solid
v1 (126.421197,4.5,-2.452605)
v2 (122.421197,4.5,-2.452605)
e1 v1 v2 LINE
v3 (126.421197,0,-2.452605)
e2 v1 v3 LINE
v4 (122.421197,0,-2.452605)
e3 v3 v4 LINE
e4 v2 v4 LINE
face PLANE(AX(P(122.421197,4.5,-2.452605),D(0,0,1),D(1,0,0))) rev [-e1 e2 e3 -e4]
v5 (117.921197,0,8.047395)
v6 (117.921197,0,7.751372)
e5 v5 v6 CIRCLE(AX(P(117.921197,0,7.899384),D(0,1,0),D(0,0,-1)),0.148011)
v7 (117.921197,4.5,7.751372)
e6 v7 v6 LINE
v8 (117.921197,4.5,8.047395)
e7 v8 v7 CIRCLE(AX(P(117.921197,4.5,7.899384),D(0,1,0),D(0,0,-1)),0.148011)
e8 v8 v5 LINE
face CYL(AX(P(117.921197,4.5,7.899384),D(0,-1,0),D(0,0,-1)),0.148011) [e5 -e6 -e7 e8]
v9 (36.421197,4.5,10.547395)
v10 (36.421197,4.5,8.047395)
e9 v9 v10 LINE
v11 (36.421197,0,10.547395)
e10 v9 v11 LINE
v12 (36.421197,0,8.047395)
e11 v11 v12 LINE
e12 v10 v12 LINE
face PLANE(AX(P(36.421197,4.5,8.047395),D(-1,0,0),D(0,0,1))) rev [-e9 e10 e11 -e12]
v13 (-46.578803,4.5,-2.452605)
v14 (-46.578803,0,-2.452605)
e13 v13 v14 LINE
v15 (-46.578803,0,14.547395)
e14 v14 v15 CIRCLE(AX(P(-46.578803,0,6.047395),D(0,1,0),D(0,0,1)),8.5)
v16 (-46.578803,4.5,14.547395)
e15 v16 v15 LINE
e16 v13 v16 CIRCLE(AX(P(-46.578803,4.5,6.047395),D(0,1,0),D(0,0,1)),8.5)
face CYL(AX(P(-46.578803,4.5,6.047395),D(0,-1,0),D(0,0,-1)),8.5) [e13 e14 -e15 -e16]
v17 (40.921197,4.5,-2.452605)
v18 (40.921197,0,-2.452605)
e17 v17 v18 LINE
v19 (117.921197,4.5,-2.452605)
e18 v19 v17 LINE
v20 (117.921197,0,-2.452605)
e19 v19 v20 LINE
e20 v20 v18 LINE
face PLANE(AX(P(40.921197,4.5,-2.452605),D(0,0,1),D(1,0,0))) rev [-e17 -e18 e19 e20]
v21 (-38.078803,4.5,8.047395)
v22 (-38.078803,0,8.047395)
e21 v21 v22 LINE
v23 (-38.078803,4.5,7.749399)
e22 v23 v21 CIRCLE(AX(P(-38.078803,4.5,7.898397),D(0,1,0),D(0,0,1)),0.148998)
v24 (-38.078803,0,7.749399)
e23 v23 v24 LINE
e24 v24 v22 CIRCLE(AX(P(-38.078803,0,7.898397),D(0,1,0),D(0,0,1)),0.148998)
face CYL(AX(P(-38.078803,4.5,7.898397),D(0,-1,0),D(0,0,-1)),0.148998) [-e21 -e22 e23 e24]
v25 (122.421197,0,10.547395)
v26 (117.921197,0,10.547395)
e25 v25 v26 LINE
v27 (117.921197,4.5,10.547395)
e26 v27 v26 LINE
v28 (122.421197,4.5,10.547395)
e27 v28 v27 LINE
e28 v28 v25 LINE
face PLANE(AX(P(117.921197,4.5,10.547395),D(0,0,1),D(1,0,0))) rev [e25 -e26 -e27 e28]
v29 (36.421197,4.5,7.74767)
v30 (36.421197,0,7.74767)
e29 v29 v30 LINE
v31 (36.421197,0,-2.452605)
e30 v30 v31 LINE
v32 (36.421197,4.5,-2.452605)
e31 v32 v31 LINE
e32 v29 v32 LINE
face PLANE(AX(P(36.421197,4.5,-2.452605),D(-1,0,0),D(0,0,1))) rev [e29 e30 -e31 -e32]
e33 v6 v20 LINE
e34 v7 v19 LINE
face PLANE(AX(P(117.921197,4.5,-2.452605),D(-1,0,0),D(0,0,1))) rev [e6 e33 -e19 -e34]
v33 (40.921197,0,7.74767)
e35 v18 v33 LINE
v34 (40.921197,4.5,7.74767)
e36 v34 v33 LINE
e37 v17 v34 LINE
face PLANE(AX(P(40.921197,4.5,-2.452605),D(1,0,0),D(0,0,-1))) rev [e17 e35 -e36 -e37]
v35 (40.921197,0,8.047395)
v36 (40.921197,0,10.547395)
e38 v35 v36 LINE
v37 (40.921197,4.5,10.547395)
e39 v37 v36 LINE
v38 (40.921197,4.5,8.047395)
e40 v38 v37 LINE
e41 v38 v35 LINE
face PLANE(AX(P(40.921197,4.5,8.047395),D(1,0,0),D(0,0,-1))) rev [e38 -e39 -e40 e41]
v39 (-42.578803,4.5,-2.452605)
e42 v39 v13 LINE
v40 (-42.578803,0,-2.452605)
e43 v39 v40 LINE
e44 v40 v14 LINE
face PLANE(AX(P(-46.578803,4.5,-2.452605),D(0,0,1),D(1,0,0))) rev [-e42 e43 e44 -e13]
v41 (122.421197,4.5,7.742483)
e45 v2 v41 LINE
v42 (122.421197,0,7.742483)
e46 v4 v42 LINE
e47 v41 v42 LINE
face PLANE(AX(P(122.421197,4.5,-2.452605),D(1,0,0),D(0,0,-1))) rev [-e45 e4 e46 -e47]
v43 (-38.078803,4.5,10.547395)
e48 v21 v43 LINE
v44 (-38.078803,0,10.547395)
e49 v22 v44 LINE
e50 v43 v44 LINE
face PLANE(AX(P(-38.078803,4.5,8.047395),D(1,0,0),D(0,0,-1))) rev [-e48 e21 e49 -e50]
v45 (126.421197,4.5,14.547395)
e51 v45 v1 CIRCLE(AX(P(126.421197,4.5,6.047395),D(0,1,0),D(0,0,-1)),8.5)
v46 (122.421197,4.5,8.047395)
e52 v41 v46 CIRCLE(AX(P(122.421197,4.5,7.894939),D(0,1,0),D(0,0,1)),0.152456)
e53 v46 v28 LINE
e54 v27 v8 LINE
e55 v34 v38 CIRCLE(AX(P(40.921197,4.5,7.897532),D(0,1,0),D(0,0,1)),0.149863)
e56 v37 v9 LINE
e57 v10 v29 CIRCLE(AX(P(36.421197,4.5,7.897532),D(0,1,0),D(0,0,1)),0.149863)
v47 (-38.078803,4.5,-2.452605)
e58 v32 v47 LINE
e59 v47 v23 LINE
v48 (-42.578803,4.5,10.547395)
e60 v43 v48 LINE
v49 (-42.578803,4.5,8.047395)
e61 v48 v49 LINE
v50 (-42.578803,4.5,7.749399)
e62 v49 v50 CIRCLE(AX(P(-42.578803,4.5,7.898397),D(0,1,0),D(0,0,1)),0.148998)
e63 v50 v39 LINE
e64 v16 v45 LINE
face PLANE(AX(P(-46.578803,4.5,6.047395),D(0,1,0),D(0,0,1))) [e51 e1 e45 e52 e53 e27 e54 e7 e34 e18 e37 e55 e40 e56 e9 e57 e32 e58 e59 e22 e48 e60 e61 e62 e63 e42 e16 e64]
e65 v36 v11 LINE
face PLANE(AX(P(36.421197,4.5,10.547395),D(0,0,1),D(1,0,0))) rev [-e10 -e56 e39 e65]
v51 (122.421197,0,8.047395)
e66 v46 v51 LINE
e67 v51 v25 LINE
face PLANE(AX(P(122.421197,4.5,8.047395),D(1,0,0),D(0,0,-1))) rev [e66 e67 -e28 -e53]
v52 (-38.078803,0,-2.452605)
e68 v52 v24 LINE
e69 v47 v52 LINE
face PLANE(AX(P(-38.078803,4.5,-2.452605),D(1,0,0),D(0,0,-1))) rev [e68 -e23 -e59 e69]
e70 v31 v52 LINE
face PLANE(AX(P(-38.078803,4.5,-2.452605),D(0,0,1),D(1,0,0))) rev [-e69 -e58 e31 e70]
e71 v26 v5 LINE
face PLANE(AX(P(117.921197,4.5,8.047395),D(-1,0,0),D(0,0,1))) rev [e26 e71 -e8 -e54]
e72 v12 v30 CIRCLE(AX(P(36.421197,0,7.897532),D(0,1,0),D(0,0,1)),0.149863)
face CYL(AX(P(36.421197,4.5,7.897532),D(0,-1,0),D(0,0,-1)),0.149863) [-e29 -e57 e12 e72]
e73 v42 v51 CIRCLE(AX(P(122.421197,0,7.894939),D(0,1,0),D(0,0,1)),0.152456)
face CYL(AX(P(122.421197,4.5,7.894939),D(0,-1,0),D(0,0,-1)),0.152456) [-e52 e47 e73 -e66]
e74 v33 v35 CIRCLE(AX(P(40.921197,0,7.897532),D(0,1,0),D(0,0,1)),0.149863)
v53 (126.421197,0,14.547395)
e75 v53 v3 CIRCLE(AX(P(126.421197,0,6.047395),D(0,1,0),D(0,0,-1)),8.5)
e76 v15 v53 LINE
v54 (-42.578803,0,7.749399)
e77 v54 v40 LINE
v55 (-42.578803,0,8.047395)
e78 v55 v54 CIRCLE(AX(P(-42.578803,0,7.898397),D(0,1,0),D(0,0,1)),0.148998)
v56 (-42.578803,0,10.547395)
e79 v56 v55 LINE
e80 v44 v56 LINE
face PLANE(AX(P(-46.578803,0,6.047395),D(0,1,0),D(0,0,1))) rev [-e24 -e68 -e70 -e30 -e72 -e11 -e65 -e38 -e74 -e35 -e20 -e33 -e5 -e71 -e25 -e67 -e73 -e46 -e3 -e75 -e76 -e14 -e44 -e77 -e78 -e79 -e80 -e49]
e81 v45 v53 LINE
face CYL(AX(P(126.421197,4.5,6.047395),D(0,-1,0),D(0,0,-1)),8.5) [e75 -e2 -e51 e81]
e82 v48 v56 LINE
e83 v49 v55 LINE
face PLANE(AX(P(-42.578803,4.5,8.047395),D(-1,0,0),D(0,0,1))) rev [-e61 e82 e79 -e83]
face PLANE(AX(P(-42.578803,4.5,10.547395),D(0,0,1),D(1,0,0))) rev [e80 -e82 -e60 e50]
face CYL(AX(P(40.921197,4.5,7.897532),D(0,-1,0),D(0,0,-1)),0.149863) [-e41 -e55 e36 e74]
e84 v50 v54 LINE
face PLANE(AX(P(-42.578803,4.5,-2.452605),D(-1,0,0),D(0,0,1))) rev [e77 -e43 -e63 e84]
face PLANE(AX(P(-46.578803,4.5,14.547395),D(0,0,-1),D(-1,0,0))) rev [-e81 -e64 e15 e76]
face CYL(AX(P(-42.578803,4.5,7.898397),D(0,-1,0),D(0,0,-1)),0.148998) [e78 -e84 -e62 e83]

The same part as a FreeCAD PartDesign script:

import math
import FreeCAD as App
import Part
import Sketcher
Q = App.Units.Quantity

doc = App.newDocument("Part")
body = doc.addObject("PartDesign::Body", "Body")

# Sketch on XZ plane
sketch1 = body.newObject("Sketcher::SketchObject", "Sketch")
sketch1.AttachmentSupport = (doc.getObject("XZ_Plane"), [""])
sketch1.MapMode = "FlatFace"
sketch1.addGeometry(Part.LineSegment(App.Vector(117.92, -2.45, 0), App.Vector(40.92, -2.45, 0)), False)
sketch1.addGeometry(Part.LineSegment(App.Vector(40.92, -2.45, 0), App.Vector(40.92, 7.75, 0)), False)
sketch1.addGeometry(Part.ArcOfCircle(Part.Circle(App.Vector(40.92, 7.9, 0), App.Vector(0, 0, 1), 0.15), math.radians(90), math.radians(270)), False)
sketch1.addGeometry(Part.LineSegment(App.Vector(40.92, 8.05, 0), App.Vector(40.92, 10.55, 0)), False)
sketch1.addGeometry(Part.LineSegment(App.Vector(40.92, 10.55, 0), App.Vector(36.42, 10.55, 0)), False)
sketch1.addGeometry(Part.LineSegment(App.Vector(36.42, 10.55, 0), App.Vector(36.42, 8.05, 0)), False)
sketch1.addGeometry(Part.ArcOfCircle(Part.Circle(App.Vector(36.42, 7.9, 0), App.Vector(0, 0, 1), 0.15), math.radians(-90), math.radians(90)), False)
sketch1.addGeometry(Part.LineSegment(App.Vector(36.42, 7.75, 0), App.Vector(36.42, -2.45, 0)), False)
sketch1.addGeometry(Part.LineSegment(App.Vector(36.42, -2.45, 0), App.Vector(-38.08, -2.45, 0)), False)
sketch1.addGeometry(Part.LineSegment(App.Vector(-38.08, -2.45, 0), App.Vector(-38.08, 7.75, 0)), False)
sketch1.addGeometry(Part.ArcOfCircle(Part.Circle(App.Vector(-38.08, 7.9, 0), App.Vector(0, 0, 1), 0.15), math.radians(90), math.radians(270)), False)
sketch1.addGeometry(Part.LineSegment(App.Vector(-38.08, 8.05, 0), App.Vector(-38.08, 10.55, 0)), False)
sketch1.addGeometry(Part.LineSegment(App.Vector(-38.08, 10.55, 0), App.Vector(-42.58, 10.55, 0)), False)
sketch1.addGeometry(Part.LineSegment(App.Vector(-42.58, 10.55, 0), App.Vector(-42.58, 8.05, 0)), False)
sketch1.addGeometry(Part.ArcOfCircle(Part.Circle(App.Vector(-42.58, 7.9, 0), App.Vector(0, 0, 1), 0.15), math.radians(-90), math.radians(90)), False)
sketch1.addGeometry(Part.LineSegment(App.Vector(-42.58, 7.75, 0), App.Vector(-42.58, -2.45, 0)), False)
sketch1.addGeometry(Part.LineSegment(App.Vector(-42.58, -2.45, 0), App.Vector(-46.58, -2.45, 0)), False)
sketch1.addGeometry(Part.ArcOfCircle(Part.Circle(App.Vector(-46.58, 6.05, 0), App.Vector(0, 0, 1), 8.5), math.radians(90), math.radians(270)), False)
sketch1.addGeometry(Part.LineSegment(App.Vector(-46.58, 14.55, 0), App.Vector(126.42, 14.55, 0)), False)
sketch1.addGeometry(Part.ArcOfCircle(Part.Circle(App.Vector(126.42, 6.05, 0), App.Vector(0, 0, 1), 8.5), math.radians(-90), math.radians(90)), False)
sketch1.addGeometry(Part.LineSegment(App.Vector(126.42, -2.45, 0), App.Vector(122.42, -2.45, 0)), False)
sketch1.addGeometry(Part.LineSegment(App.Vector(122.42, -2.45, 0), App.Vector(122.42, 7.74, 0)), False)
sketch1.addGeometry(Part.ArcOfCircle(Part.Circle(App.Vector(122.42, 7.89, 0), App.Vector(0, 0, 1), 0.15), math.radians(90), math.radians(270)), False)
sketch1.addGeometry(Part.LineSegment(App.Vector(122.42, 8.05, 0), App.Vector(122.42, 10.55, 0)), False)
sketch1.addGeometry(Part.LineSegment(App.Vector(122.42, 10.55, 0), App.Vector(117.92, 10.55, 0)), False)
sketch1.addGeometry(Part.LineSegment(App.Vector(117.92, 10.55, 0), App.Vector(117.92, 8.05, 0)), False)
sketch1.addGeometry(Part.ArcOfCircle(Part.Circle(App.Vector(117.92, 7.9, 0), App.Vector(0, 0, 1), 0.15), math.radians(-90), math.radians(90)), False)
sketch1.addGeometry(Part.LineSegment(App.Vector(117.92, 7.75, 0), App.Vector(117.92, -2.45, 0)), False)
sketch1.addConstraint(Sketcher.Constraint("Coincident", 0, 2, 1, 1))
sketch1.addConstraint(Sketcher.Constraint("Coincident", 1, 2, 2, 2))
sketch1.addConstraint(Sketcher.Constraint("Coincident", 2, 1, 3, 1))
sketch1.addConstraint(Sketcher.Constraint("Coincident", 3, 2, 4, 1))
sketch1.addConstraint(Sketcher.Constraint("Coincident", 4, 2, 5, 1))
sketch1.addConstraint(Sketcher.Constraint("Coincident", 5, 2, 6, 2))
sketch1.addConstraint(Sketcher.Constraint("Coincident", 6, 1, 7, 1))
sketch1.addConstraint(Sketcher.Constraint("Coincident", 7, 2, 8, 1))
sketch1.addConstraint(Sketcher.Constraint("Coincident", 8, 2, 9, 1))
sketch1.addConstraint(Sketcher.Constraint("Coincident", 9, 2, 10, 2))
sketch1.addConstraint(Sketcher.Constraint("Coincident", 10, 1, 11, 1))
sketch1.addConstraint(Sketcher.Constraint("Coincident", 11, 2, 12, 1))
sketch1.addConstraint(Sketcher.Constraint("Coincident", 12, 2, 13, 1))
sketch1.addConstraint(Sketcher.Constraint("Coincident", 13, 2, 14, 2))
sketch1.addConstraint(Sketcher.Constraint("Coincident", 14, 1, 15, 1))
sketch1.addConstraint(Sketcher.Constraint("Coincident", 15, 2, 16, 1))
sketch1.addConstraint(Sketcher.Constraint("Tangent", 16, 2, 17, 2))
sketch1.addConstraint(Sketcher.Constraint("Tangent", 17, 1, 18, 1))
sketch1.addConstraint(Sketcher.Constraint("Tangent", 18, 2, 19, 2))
sketch1.addConstraint(Sketcher.Constraint("Tangent", 19, 1, 20, 1))
sketch1.addConstraint(Sketcher.Constraint("Coincident", 20, 2, 21, 1))
sketch1.addConstraint(Sketcher.Constraint("Coincident", 21, 2, 22, 2))
sketch1.addConstraint(Sketcher.Constraint("Coincident", 22, 1, 23, 1))
sketch1.addConstraint(Sketcher.Constraint("Coincident", 23, 2, 24, 1))
sketch1.addConstraint(Sketcher.Constraint("Coincident", 24, 2, 25, 1))
sketch1.addConstraint(Sketcher.Constraint("Coincident", 25, 2, 26, 2))
sketch1.addConstraint(Sketcher.Constraint("Coincident", 26, 1, 27, 1))
sketch1.addConstraint(Sketcher.Constraint("Coincident", 27, 2, 0, 1))
sketch1.addConstraint(Sketcher.Constraint("Horizontal", 0))
sketch1.addConstraint(Sketcher.Constraint("Vertical", 1))
sketch1.addConstraint(Sketcher.Constraint("Vertical", 3))
sketch1.addConstraint(Sketcher.Constraint("Horizontal", 4))
sketch1.addConstraint(Sketcher.Constraint("Vertical", 5))
sketch1.addConstraint(Sketcher.Constraint("Vertical", 7))
sketch1.addConstraint(Sketcher.Constraint("Horizontal", 8))
sketch1.addConstraint(Sketcher.Constraint("Vertical", 9))
sketch1.addConstraint(Sketcher.Constraint("Vertical", 11))
sketch1.addConstraint(Sketcher.Constraint("Horizontal", 12))
sketch1.addConstraint(Sketcher.Constraint("Vertical", 13))
sketch1.addConstraint(Sketcher.Constraint("Vertical", 15))
sketch1.addConstraint(Sketcher.Constraint("Horizontal", 16))
sketch1.addConstraint(Sketcher.Constraint("Horizontal", 18))
sketch1.addConstraint(Sketcher.Constraint("Horizontal", 20))
sketch1.addConstraint(Sketcher.Constraint("Vertical", 21))
sketch1.addConstraint(Sketcher.Constraint("Vertical", 23))
sketch1.addConstraint(Sketcher.Constraint("Horizontal", 24))
sketch1.addConstraint(Sketcher.Constraint("Vertical", 25))
sketch1.addConstraint(Sketcher.Constraint("Vertical", 27))
sketch1.addConstraint(Sketcher.Constraint("Equal", 2, 6))
sketch1.addConstraint(Sketcher.Constraint("Equal", 10, 14))
sketch1.addConstraint(Sketcher.Constraint("Equal", 17, 19))
sketch1.addConstraint(Sketcher.Constraint("Horizontal", 2, 3, 6, 3))
sketch1.addConstraint(Sketcher.Constraint("Horizontal", 10, 3, 14, 3))
sketch1.addConstraint(Sketcher.Constraint("Horizontal", 0, 2, 7, 2))
sketch1.addConstraint(Sketcher.Constraint("Horizontal", 5, 2, 10, 1))
sketch1.addConstraint(Sketcher.Constraint("Horizontal", 4, 2, 11, 2))
sketch1.addConstraint(Sketcher.Constraint("Horizontal", 8, 2, 15, 2))
sketch1.addConstraint(Sketcher.Constraint("Horizontal", 13, 2, 22, 1))
sketch1.addConstraint(Sketcher.Constraint("Horizontal", 12, 2, 23, 2))
sketch1.addConstraint(Sketcher.Constraint("Horizontal", 22, 1, 25, 2))
sketch1.addConstraint(Sketcher.Constraint("Vertical", 2, 3, 0, 2))
sketch1.addConstraint(Sketcher.Constraint("Vertical", 1, 2, 2, 1))
sketch1.addConstraint(Sketcher.Constraint("Vertical", 6, 3, 4, 2))
sketch1.addConstraint(Sketcher.Constraint("Vertical", 5, 2, 6, 1))
sketch1.addConstraint(Sketcher.Constraint("Vertical", 10, 3, 8, 2))
sketch1.addConstraint(Sketcher.Constraint("Vertical", 9, 2, 10, 1))
sketch1.addConstraint(Sketcher.Constraint("Vertical", 14, 3, 12, 2))
sketch1.addConstraint(Sketcher.Constraint("Vertical", 13, 2, 14, 1))
sketch1.addConstraint(Sketcher.Constraint("Vertical", 22, 3, 20, 2))
sketch1.addConstraint(Sketcher.Constraint("Vertical", 21, 2, 22, 1))
sketch1.addConstraint(Sketcher.Constraint("Vertical", 26, 3, 24, 2))
sketch1.addConstraint(Sketcher.Constraint("Vertical", 25, 2, 26, 1))
sketch1.addConstraint(Sketcher.Constraint("Equal", 4, 12))
sketch1.addConstraint(Sketcher.Constraint("Equal", 16, 20))
sketch1.addConstraint(Sketcher.Constraint("Equal", 12, 24))
sketch1.addConstraint(Sketcher.Constraint("Radius", 17, Q("8.5 mm")))
sketch1.addConstraint(Sketcher.Constraint("DistanceX", 0, 2, 0, 1, Q("77 mm")))
sketch1.addConstraint(Sketcher.Constraint("DistanceX", 16, 2, 16, 1, Q("4 mm")))
sketch1.addConstraint(Sketcher.Constraint("DistanceX", 18, 1, 18, 2, Q("173 mm")))
sketch1.addConstraint(Sketcher.Constraint("DistanceX", 4, 2, 4, 1, Q("4.5 mm")))
sketch1.addConstraint(Sketcher.Constraint("DistanceY", 3, 1, 3, 2, Q("2.5 mm")))
sketch1.addConstraint(Sketcher.Constraint("DistanceY", 0, 2, 3, 2, Q("13 mm")))
sketch1.addConstraint(Sketcher.Constraint("Radius", 26, Q("0.148011 mm")))
sketch1.addConstraint(Sketcher.Constraint("Radius", 2, Q("0.149863 mm")))
sketch1.addConstraint(Sketcher.Constraint("Radius", 10, Q("0.148998 mm")))
sketch1.addConstraint(Sketcher.Constraint("Radius", 22, Q("0.152456 mm")))
sketch1.addConstraint(Sketcher.Constraint("DistanceY", -1, 1, 9, 2, Q("7.749399 mm")))
sketch1.addConstraint(Sketcher.Constraint("DistanceX", -1, 1, 2, 3, Q("40.921197 mm")))
pad1 = body.newObject("PartDesign::Pad", "Pad")
pad1.Profile = sketch1
pad1.Length = 4.5
pad1.Reversed = True

doc.recompute()
